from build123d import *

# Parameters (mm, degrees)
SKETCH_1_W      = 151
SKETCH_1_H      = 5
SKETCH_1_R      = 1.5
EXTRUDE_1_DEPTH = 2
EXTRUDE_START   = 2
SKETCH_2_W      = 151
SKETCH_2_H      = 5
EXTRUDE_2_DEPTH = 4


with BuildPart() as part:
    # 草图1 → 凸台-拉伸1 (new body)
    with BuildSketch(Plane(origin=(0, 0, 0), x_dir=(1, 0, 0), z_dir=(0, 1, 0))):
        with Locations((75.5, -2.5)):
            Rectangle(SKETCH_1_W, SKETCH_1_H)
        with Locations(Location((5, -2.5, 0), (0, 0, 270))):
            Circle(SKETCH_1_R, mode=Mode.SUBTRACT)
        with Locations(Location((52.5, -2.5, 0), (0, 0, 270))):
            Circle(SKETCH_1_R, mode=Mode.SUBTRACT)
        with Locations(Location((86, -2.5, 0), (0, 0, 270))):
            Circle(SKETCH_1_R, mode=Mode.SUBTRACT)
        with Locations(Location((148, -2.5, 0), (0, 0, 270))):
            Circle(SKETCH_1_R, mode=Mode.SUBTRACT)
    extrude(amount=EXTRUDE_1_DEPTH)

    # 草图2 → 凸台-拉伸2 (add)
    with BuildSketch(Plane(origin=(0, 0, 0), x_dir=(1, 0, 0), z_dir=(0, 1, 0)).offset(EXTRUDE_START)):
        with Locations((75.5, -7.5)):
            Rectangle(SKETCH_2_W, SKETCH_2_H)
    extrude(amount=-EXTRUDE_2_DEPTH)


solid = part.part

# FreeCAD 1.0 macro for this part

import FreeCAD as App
import Part
import Sketcher

V = App.Vector

doc = App.newDocument("Part")
body = doc.addObject("PartDesign::Body", "Body")

# Sketch on XZ plane
sketch1 = body.newObject("Sketcher::SketchObject", "Sketch")
sketch1.AttachmentSupport = (doc.getObject("XZ_Plane"), [""])
sketch1.MapMode = "FlatFace"
sketch1.addGeometry(Part.LineSegment(V(0, 0, 0), V(0, 5, 0)), False)
sketch1.addGeometry(Part.LineSegment(V(0, 5, 0), V(151, 5, 0)), False)
sketch1.addGeometry(Part.LineSegment(V(151, 5, 0), V(151, 0, 0)), False)
sketch1.addGeometry(Part.LineSegment(V(151, 0, 0), V(0, 0, 0)), False)
sketch1.addGeometry(Part.Circle(V(5, 2.5, 0), V(0, 0, 1), 1.5), False)
sketch1.addGeometry(Part.Circle(V(52.5, 2.5, 0), V(0, 0, 1), 1.5), False)
sketch1.addGeometry(Part.Circle(V(86, 2.5, 0), V(0, 0, 1), 1.5), False)
sketch1.addGeometry(Part.Circle(V(148, 2.5, 0), V(0, 0, 1), 1.5), False)
sketch1.addConstraint(Sketcher.Constraint("Coincident", 0, 2, 1, 1))
sketch1.addConstraint(Sketcher.Constraint("Coincident", 1, 2, 2, 1))
sketch1.addConstraint(Sketcher.Constraint("Coincident", 2, 2, 3, 1))
sketch1.addConstraint(Sketcher.Constraint("Coincident", 3, 2, 0, 1))
sketch1.addConstraint(Sketcher.Constraint("Vertical", 0))
sketch1.addConstraint(Sketcher.Constraint("Horizontal", 1))
sketch1.addConstraint(Sketcher.Constraint("Vertical", 2))
sketch1.addConstraint(Sketcher.Constraint("Horizontal", 3))
sketch1.addConstraint(Sketcher.Constraint("Coincident", 3, 2, -1, 1))
sketch1.addConstraint(Sketcher.Constraint("Equal", 4, 5))
sketch1.addConstraint(Sketcher.Constraint("Equal", 5, 6))
sketch1.addConstraint(Sketcher.Constraint("Equal", 6, 7))
sketch1.addConstraint(Sketcher.Constraint("Horizontal", 4, 3, 5, 3))
sketch1.addConstraint(Sketcher.Constraint("Horizontal", 5, 3, 6, 3))
sketch1.addConstraint(Sketcher.Constraint("Horizontal", 6, 3, 7, 3))
sketch1.addConstraint(Sketcher.Constraint("Diameter", 4, 3.0))
sketch1.addConstraint(Sketcher.Constraint("DistanceX", 1, 1, 1, 2, 151.0))
sketch1.addConstraint(Sketcher.Constraint("DistanceY", 0, 1, 0, 2, 5.0))
sketch1.addConstraint(Sketcher.Constraint("DistanceX", -1, 1, 4, 3, 5.0))
sketch1.addConstraint(Sketcher.Constraint("DistanceX", -1, 1, 6, 3, 86.0))
sketch1.addConstraint(Sketcher.Constraint("DistanceX", -1, 1, 7, 3, 148.0))
sketch1.addConstraint(Sketcher.Constraint("DistanceY", -1, 1, 4, 3, 2.5))
sketch1.addConstraint(Sketcher.Constraint("DistanceX", -1, 1, 5, 3, 52.5))
pad1 = body.newObject("PartDesign::Pad", "Pad")
pad1.Profile = sketch1
pad1.Length = 2
pad1.Reversed = True

# Sketch on XZ plane
sketch2 = body.newObject("Sketcher::SketchObject", "Sketch001")
sketch2.AttachmentSupport = (doc.getObject("XZ_Plane"), [""])
sketch2.MapMode = "FlatFace"
sketch2.AttachmentOffset = App.Placement(V(0, 0, -2), App.Rotation())
sketch2.addGeometry(Part.LineSegment(V(0, 5, 0), V(0, 10, 0)), False)
sketch2.addGeometry(Part.LineSegment(V(0, 10, 0), V(151, 10, 0)), False)
sketch2.addGeometry(Part.LineSegment(V(151, 10, 0), V(151, 5, 0)), False)
sketch2.addGeometry(Part.LineSegment(V(151, 5, 0), V(0, 5, 0)), False)
sketch2.addConstraint(Sketcher.Constraint("Coincident", 0, 2, 1, 1))
sketch2.addConstraint(Sketcher.Constraint("Coincident", 1, 2, 2, 1))
sketch2.addConstraint(Sketcher.Constraint("Coincident", 2, 2, 3, 1))
sketch2.addConstraint(Sketcher.Constraint("Coincident", 3, 2, 0, 1))
sketch2.addConstraint(Sketcher.Constraint("Vertical", 0))
sketch2.addConstraint(Sketcher.Constraint("Horizontal", 1))
sketch2.addConstraint(Sketcher.Constraint("Vertical", 2))
sketch2.addConstraint(Sketcher.Constraint("Horizontal", 3))
sketch2.addConstraint(Sketcher.Constraint("PointOnObject", 0, 2, -2))
sketch2.addConstraint(Sketcher.Constraint("DistanceX", 1, 1, 1, 2, 151.0))
sketch2.addConstraint(Sketcher.Constraint("DistanceY", 0, 1, 0, 2, 5.0))
sketch2.addConstraint(Sketcher.Constraint("DistanceY", -1, 1, 0, 2, 10.0))
pad2 = body.newObject("PartDesign::Pad", "Pad001")
pad2.Profile = sketch2
pad2.Length = 4

doc.recompute()
